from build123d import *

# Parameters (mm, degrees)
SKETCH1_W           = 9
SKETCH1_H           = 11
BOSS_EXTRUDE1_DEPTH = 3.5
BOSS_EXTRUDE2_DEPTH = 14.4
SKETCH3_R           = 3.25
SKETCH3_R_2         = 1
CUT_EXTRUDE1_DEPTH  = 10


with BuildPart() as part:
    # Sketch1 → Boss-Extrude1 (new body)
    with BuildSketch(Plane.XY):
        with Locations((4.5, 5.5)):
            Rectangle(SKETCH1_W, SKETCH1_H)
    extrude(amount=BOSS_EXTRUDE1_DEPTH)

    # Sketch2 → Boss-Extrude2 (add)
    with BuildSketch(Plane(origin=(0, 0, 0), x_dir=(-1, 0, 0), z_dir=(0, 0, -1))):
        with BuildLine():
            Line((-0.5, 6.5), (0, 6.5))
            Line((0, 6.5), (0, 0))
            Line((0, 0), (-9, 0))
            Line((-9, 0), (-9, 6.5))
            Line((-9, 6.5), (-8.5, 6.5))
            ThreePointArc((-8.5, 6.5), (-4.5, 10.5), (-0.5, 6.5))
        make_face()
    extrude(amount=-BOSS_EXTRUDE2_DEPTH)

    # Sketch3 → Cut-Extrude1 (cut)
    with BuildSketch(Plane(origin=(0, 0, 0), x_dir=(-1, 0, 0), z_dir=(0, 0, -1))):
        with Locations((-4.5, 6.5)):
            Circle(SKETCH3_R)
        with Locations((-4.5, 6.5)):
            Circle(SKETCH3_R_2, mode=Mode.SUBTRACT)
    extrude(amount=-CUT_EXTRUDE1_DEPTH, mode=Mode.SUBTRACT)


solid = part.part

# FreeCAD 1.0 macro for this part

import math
import FreeCAD as App
import Part
import Sketcher

V = App.Vector

doc = App.newDocument("Part")
body = doc.addObject("PartDesign::Body", "Body")

sketch1 = body.newObject("Sketcher::SketchObject", "Sketch")
sketch1.AttachmentSupport = (doc.getObject("XY_Plane"), [""])
sketch1.MapMode = "FlatFace"
sketch1.addGeometry([
    Part.LineSegment(V(0, 11, 0), V(0, 0, 0)),
    Part.LineSegment(V(0, 0, 0), V(9, 0, 0)),
    Part.LineSegment(V(9, 0, 0), V(9, 11, 0)),
    Part.LineSegment(V(9, 11, 0), V(0, 11, 0)),
], False)
sketch1.addConstraint([
    Sketcher.Constraint("Coincident", 0, 2, 1, 1),
    Sketcher.Constraint("Coincident", 1, 2, 2, 1),
    Sketcher.Constraint("Coincident", 2, 2, 3, 1),
    Sketcher.Constraint("Coincident", 3, 2, 0, 1),
    Sketcher.Constraint("Vertical", 0),
    Sketcher.Constraint("Horizontal", 1),
    Sketcher.Constraint("Vertical", 2),
    Sketcher.Constraint("Horizontal", 3),
    Sketcher.Constraint("Coincident", 0, 2, -1, 1),
    Sketcher.Constraint("DistanceX", 1, 1, 1, 2, 9.0),
    Sketcher.Constraint("DistanceY", 0, 2, 0, 1, 11.0),
])
pad1 = body.newObject("PartDesign::Pad", "Pad")
pad1.Profile = sketch1
pad1.Length = 3.5

sketch2 = body.newObject("Sketcher::SketchObject", "Sketch001")
sketch2.AttachmentSupport = (doc.getObject("XY_Plane"), [""])
sketch2.MapMode = "FlatFace"
sketch2.addGeometry([
    Part.LineSegment(V(0, 6.5, 0), V(0.5, 6.5, 0)),
    Part.ArcOfCircle(Part.Circle(V(4.5, 6.5, 0), V(0, 0, 1), 4), math.radians(0), math.radians(180)),
    Part.LineSegment(V(8.5, 6.5, 0), V(9, 6.5, 0)),
    Part.LineSegment(V(9, 6.5, 0), V(9, 0, 0)),
    Part.LineSegment(V(9, 0, 0), V(0, 0, 0)),
    Part.LineSegment(V(0, 0, 0), V(0, 6.5, 0)),
], False)
sketch2.addConstraint([
    Sketcher.Constraint("Coincident", 0, 2, 1, 2),
    Sketcher.Constraint("Coincident", 1, 1, 2, 1),
    Sketcher.Constraint("Coincident", 2, 2, 3, 1),
    Sketcher.Constraint("Coincident", 3, 2, 4, 1),
    Sketcher.Constraint("Coincident", 4, 2, 5, 1),
    Sketcher.Constraint("Coincident", 5, 2, 0, 1),
    Sketcher.Constraint("Horizontal", 0),
    Sketcher.Constraint("Horizontal", 2),
    Sketcher.Constraint("Vertical", 3),
    Sketcher.Constraint("Horizontal", 4),
    Sketcher.Constraint("Vertical", 5),
    Sketcher.Constraint("Coincident", 4, 2, -1, 1),
    Sketcher.Constraint("Horizontal", 1, 3, 0, 2),
    Sketcher.Constraint("Horizontal", 0, 2, 1, 1),
    Sketcher.Constraint("Equal", 0, 2),
    Sketcher.Constraint("Radius", 1, 4.0),
    Sketcher.Constraint("DistanceX", 4, 2, 4, 1, 9.0),
    Sketcher.Constraint("DistanceY", 3, 2, 3, 1, 6.5),
])
pad2 = body.newObject("PartDesign::Pad", "Pad001")
pad2.Profile = sketch2
pad2.Length = 14.4

sketch3 = body.newObject("Sketcher::SketchObject", "Sketch002")
sketch3.AttachmentSupport = (doc.getObject("XY_Plane"), [""])
sketch3.MapMode = "FlatFace"
sketch3.addGeometry([
    Part.Circle(V(4.5, 6.5, 0), V(0, 0, 1), 3.2),
    Part.Circle(V(4.5, 6.5, 0), V(0, 0, 1), 1),
], False)
sketch3.addConstraint([
    Sketcher.Constraint("Coincident", 1, 3, 0, 3),
    Sketcher.Constraint("Diameter", 1, 2.0),
    Sketcher.Constraint("Diameter", 0, 6.5),
    Sketcher.Constraint("DistanceX", -1, 1, 0, 3, 4.5),
    Sketcher.Constraint("DistanceY", -1, 1, 0, 3, 6.5),
])
pocket1 = body.newObject("PartDesign::Pocket", "Pocket")
pocket1.Profile = sketch3
pocket1.Length = 10
pocket1.Reversed = True

doc.recompute()
